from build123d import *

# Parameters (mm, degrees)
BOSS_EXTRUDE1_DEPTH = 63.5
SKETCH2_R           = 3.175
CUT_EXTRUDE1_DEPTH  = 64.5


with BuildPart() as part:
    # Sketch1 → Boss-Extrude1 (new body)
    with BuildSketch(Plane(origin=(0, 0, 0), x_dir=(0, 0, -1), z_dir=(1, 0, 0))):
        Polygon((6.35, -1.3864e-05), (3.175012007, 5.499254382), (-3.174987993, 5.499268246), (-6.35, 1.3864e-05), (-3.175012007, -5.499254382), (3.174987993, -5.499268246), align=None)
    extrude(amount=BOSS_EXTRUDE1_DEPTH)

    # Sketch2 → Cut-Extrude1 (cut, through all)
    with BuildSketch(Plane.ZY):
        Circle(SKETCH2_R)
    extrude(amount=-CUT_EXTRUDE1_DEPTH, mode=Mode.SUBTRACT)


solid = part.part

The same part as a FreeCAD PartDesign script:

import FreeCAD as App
import Part
import Sketcher
Q = App.Units.Quantity


def add_polygon(sketch, points):
    """Adds a closed chain of lines whose ends are joined by coincident constraints."""
    first, n = sketch.GeometryCount, len(points)
    for a, b in zip(points, points[1:] + points[:1]):
        sketch.addGeometry(Part.LineSegment(App.Vector(*a, 0), App.Vector(*b, 0)), False)
    for i in range(n):
        sketch.addConstraint(Sketcher.Constraint("Coincident", first + i, 2, first + (i + 1) % n, 1))

doc = App.newDocument("Part")
body = doc.addObject("PartDesign::Body", "Body")

sketch1 = doc.addObject("Sketcher::SketchObject", "Sketch")
body.addObject(sketch1)
sketch1.AttachmentSupport = (doc.YZ_Plane, [""])
sketch1.MapMode = "FlatFace"
add_polygon(sketch1, [(0, -6), (5, -3), (5, 3), (0, 6), (-5, 3), (-5, -3)])
sketch1.addConstraint(Sketcher.Constraint("Symmetric", 0, 2, 3, 2, -1, 1))
sketch1.addConstraint(Sketcher.Constraint("Symmetric", 1, 2, 4, 2, -1, 1))
sketch1.addConstraint(Sketcher.Constraint("Symmetric", 2, 2, 5, 2, -1, 1))
sketch1.addConstraint(Sketcher.Constraint("Equal", 0, 1))
sketch1.addConstraint(Sketcher.Constraint("Equal", 1, 2))
sketch1.addConstraint(Sketcher.Constraint("DistanceY", 5, 2, 2, 2, Q("0.5 in")))
sketch1.addConstraint(Sketcher.Constraint("Distance", 0, Q("0.25 in")))
sketch1.addConstraint(Sketcher.Constraint("DistanceX", -1, 1, 1, 2, Q("5.499268 mm")))
sketch1.addConstraint(Sketcher.Constraint("DistanceX", 2, 2, 0, 2, Q("5.499241 mm")))
pad1 = doc.addObject("PartDesign::Pad", "Pad")
body.addObject(pad1)
pad1.Profile = sketch1
pad1.Length = Q("2.5 in")

sketch2 = doc.addObject("Sketcher::SketchObject", "Sketch001")
body.addObject(sketch2)
sketch2.AttachmentSupport = (doc.YZ_Plane, [""])
sketch2.MapMode = "FlatFace"
sketch2.addGeometry(Part.Circle(App.Vector(0, 0, 0), App.Vector(0, 0, 1), 3.2), False)
sketch2.addConstraint(Sketcher.Constraint("Coincident", 0, 3, -1, 1))
sketch2.addConstraint(Sketcher.Constraint("Diameter", 0, Q("0.25 in")))
pocket1 = doc.addObject("PartDesign::Pocket", "Pocket")
body.addObject(pocket1)
pocket1.Profile = sketch2
pocket1.Type = "ThroughAll"
pocket1.Reversed = True

doc.recompute()
